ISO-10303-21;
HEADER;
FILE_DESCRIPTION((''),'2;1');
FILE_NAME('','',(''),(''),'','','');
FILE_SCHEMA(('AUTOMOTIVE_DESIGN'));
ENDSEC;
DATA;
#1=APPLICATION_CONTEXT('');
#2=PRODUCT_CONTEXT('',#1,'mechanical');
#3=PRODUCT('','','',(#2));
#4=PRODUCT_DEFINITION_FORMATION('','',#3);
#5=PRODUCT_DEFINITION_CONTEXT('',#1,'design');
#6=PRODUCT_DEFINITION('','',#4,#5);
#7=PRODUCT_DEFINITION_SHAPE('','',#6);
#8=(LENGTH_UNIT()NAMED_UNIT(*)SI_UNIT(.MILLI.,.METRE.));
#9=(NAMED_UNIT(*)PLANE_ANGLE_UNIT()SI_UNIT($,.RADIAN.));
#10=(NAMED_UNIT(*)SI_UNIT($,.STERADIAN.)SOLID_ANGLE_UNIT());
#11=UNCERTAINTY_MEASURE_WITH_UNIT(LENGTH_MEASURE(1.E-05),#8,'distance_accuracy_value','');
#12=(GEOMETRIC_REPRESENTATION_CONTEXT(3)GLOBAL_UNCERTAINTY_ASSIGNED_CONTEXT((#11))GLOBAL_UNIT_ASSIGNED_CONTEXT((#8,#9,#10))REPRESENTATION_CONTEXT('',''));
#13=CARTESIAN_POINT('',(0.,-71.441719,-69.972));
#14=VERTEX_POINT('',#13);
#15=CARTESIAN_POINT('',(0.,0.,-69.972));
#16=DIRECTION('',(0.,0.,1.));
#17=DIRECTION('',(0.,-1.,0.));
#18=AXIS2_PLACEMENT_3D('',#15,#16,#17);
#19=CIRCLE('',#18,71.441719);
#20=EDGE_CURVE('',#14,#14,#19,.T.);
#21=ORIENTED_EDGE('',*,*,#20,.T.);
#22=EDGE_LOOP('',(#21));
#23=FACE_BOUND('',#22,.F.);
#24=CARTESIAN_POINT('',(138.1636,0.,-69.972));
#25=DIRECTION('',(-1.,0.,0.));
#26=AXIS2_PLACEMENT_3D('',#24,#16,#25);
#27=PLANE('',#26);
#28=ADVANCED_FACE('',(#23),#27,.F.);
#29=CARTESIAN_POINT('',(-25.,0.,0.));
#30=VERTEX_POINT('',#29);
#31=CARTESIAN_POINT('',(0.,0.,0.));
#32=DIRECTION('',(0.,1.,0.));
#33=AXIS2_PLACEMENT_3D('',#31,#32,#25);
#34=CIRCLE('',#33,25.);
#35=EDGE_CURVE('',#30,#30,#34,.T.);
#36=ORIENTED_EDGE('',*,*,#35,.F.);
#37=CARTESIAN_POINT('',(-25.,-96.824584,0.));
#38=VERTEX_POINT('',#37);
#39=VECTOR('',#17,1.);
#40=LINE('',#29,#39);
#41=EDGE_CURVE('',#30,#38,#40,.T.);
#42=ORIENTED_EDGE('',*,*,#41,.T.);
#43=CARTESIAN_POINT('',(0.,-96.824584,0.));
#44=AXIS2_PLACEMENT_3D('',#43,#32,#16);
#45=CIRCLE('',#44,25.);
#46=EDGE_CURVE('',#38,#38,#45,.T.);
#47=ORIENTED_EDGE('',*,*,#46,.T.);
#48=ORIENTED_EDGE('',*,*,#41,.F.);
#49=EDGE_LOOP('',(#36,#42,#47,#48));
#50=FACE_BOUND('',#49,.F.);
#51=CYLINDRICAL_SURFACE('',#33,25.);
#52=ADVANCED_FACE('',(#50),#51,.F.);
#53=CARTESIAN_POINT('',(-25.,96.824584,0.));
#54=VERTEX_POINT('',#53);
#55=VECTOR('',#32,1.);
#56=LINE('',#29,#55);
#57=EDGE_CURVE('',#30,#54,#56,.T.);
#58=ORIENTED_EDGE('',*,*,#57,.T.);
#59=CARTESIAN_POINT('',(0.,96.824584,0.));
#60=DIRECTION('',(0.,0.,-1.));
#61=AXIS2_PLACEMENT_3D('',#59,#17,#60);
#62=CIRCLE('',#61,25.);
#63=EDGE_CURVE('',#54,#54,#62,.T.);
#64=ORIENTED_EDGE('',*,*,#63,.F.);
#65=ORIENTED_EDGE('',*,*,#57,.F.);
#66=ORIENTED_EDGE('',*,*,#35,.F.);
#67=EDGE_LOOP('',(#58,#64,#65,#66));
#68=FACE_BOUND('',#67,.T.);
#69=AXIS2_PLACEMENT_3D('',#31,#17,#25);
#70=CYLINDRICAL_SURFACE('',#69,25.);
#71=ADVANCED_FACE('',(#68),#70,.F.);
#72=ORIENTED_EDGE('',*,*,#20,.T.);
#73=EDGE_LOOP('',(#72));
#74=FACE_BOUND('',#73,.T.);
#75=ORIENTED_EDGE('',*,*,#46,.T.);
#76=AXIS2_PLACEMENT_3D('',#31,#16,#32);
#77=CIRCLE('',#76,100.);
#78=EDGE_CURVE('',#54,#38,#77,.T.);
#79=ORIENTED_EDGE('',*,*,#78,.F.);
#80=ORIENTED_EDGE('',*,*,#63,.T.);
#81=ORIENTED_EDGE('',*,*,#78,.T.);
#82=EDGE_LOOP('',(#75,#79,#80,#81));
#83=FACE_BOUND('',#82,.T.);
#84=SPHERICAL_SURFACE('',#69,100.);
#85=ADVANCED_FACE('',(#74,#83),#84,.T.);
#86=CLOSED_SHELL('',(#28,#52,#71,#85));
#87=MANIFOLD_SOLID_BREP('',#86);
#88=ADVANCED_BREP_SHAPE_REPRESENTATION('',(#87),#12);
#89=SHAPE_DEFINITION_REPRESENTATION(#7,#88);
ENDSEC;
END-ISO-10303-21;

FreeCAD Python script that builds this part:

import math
import FreeCAD as App
import Part
import Sketcher

doc = App.newDocument("Part")
body = doc.addObject("PartDesign::Body", "Body")

# Sketch on XY plane
sketch1 = body.newObject("Sketcher::SketchObject", "Sketch")
sketch1.AttachmentSupport = (doc.getObject("XY_Plane"), [""])
sketch1.MapMode = "FlatFace"
sketch1.addGeometry(Part.LineSegment(App.Vector(0, -100, 0), App.Vector(0, 100, 0)), False)
sketch1.addGeometry(Part.ArcOfCircle(Part.Circle(App.Vector(0, 0, 0), App.Vector(0, 0, 1), 100), math.radians(90), math.radians(270)), False)
sketch1.addConstraint(Sketcher.Constraint("Coincident", 0, 1, 1, 2))
sketch1.addConstraint(Sketcher.Constraint("Coincident", 1, 1, 0, 2))
sketch1.addConstraint(Sketcher.Constraint("Vertical", 0))
sketch1.addConstraint(Sketcher.Constraint("Coincident", 1, 3, -1, 1))
sketch1.addConstraint(Sketcher.Constraint("PointOnObject", 0, 1, -2))
sketch1.addConstraint(Sketcher.Constraint("Radius", 1, 100.0))
revolution = body.newObject("PartDesign::Revolution", "Revolution")
revolution.Profile = sketch1
revolution.ReferenceAxis = (sketch1, ["V_Axis"])
revolution.Angle = 360

# Sketch on XZ plane
sketch2 = body.newObject("Sketcher::SketchObject", "Sketch001")
sketch2.AttachmentSupport = (doc.getObject("XZ_Plane"), [""])
sketch2.MapMode = "FlatFace"
sketch2.addGeometry(Part.LineSegment(App.Vector(138, -149, 0), App.Vector(-141, -149, 0)), False)
sketch2.addGeometry(Part.LineSegment(App.Vector(-141, -149, 0), App.Vector(-141, -70, 0)), False)
sketch2.addGeometry(Part.LineSegment(App.Vector(-141, -70, 0), App.Vector(138, -70, 0)), False)
sketch2.addGeometry(Part.LineSegment(App.Vector(138, -70, 0), App.Vector(138, -149, 0)), False)
sketch2.addConstraint(Sketcher.Constraint("Coincident", 0, 2, 1, 1))
sketch2.addConstraint(Sketcher.Constraint("Coincident", 1, 2, 2, 1))
sketch2.addConstraint(Sketcher.Constraint("Coincident", 2, 2, 3, 1))
sketch2.addConstraint(Sketcher.Constraint("Coincident", 3, 2, 0, 1))
sketch2.addConstraint(Sketcher.Constraint("Horizontal", 0))
sketch2.addConstraint(Sketcher.Constraint("Vertical", 1))
sketch2.addConstraint(Sketcher.Constraint("Horizontal", 2))
sketch2.addConstraint(Sketcher.Constraint("Vertical", 3))
sketch2.addConstraint(Sketcher.Constraint("DistanceX", 0, 2, 0, 1, 278.8198))
sketch2.addConstraint(Sketcher.Constraint("DistanceY", 1, 1, 1, 2, 78.6963))
sketch2.addConstraint(Sketcher.Constraint("DistanceY", 1, 2, -1, 1, 69.972))
sketch2.addConstraint(Sketcher.Constraint("DistanceX", 0, 2, -1, 1, 140.6562))
pocket1 = body.newObject("PartDesign::Pocket", "Pocket")
pocket1.Profile = sketch2
pocket1.Length = 200
pocket1.Midplane = True

# Sketch on XZ plane
sketch3 = body.newObject("Sketcher::SketchObject", "Sketch002")
sketch3.AttachmentSupport = (doc.getObject("XZ_Plane"), [""])
sketch3.MapMode = "FlatFace"
sketch3.addGeometry(Part.Circle(App.Vector(0, 0, 0), App.Vector(0, 0, 1), 25), False)
sketch3.addConstraint(Sketcher.Constraint("Coincident", 0, 3, -1, 1))
sketch3.addConstraint(Sketcher.Constraint("Diameter", 0, 50.0))
pocket2 = body.newObject("PartDesign::Pocket", "Pocket001")
pocket2.Profile = sketch3
pocket2.Length = 200
pocket2.Midplane = True

doc.recompute()
